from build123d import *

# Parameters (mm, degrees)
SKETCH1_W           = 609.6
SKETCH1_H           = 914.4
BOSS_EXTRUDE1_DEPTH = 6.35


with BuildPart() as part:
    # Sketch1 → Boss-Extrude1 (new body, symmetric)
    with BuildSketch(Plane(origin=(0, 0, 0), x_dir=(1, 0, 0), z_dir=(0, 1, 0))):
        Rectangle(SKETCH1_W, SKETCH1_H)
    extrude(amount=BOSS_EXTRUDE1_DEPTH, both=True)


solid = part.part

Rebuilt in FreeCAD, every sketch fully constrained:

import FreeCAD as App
import Part
import Sketcher
from FreeCAD import Vector
Q = App.Units.Quantity


def add_polygon(sketch, points):
    """Adds a closed chain of lines whose ends are joined by coincident constraints."""
    first, n = sketch.GeometryCount, len(points)
    for a, b in zip(points, points[1:] + points[:1]):
        sketch.addGeometry(Part.LineSegment(App.Vector(*a, 0), App.Vector(*b, 0)), False)
    for i in range(n):
        sketch.addConstraint(Sketcher.Constraint("Coincident", first + i, 2, first + (i + 1) % n, 1))

doc = App.newDocument("Part")
body = doc.addObject("PartDesign::Body", "Body")

sketch1 = body.newObject("Sketcher::SketchObject", "Sketch")
sketch1.AttachmentSupport = (doc.getObject("XZ_Plane"), [""])
sketch1.MapMode = "FlatFace"
add_polygon(sketch1, [(-305, -457), (-305, 457), (305, 457), (305, -457)])
sketch1.addConstraint([
    Sketcher.Constraint("Vertical", 0),
    Sketcher.Constraint("Horizontal", 1),
    Sketcher.Constraint("Vertical", 2),
    Sketcher.Constraint("Horizontal", 3),
    Sketcher.Constraint("Symmetric", 0, 2, 2, 2, -1, 1),
    Sketcher.Constraint("DistanceX", 1, 1, 1, 2, Q("24 in")),
    Sketcher.Constraint("DistanceY", 0, 1, 0, 2, Q("36 in")),
])
pad1 = body.newObject("PartDesign::Pad", "Pad")
pad1.Profile = sketch1
pad1.Length = Q("0.5 in")
pad1.Midplane = True

doc.recompute()
